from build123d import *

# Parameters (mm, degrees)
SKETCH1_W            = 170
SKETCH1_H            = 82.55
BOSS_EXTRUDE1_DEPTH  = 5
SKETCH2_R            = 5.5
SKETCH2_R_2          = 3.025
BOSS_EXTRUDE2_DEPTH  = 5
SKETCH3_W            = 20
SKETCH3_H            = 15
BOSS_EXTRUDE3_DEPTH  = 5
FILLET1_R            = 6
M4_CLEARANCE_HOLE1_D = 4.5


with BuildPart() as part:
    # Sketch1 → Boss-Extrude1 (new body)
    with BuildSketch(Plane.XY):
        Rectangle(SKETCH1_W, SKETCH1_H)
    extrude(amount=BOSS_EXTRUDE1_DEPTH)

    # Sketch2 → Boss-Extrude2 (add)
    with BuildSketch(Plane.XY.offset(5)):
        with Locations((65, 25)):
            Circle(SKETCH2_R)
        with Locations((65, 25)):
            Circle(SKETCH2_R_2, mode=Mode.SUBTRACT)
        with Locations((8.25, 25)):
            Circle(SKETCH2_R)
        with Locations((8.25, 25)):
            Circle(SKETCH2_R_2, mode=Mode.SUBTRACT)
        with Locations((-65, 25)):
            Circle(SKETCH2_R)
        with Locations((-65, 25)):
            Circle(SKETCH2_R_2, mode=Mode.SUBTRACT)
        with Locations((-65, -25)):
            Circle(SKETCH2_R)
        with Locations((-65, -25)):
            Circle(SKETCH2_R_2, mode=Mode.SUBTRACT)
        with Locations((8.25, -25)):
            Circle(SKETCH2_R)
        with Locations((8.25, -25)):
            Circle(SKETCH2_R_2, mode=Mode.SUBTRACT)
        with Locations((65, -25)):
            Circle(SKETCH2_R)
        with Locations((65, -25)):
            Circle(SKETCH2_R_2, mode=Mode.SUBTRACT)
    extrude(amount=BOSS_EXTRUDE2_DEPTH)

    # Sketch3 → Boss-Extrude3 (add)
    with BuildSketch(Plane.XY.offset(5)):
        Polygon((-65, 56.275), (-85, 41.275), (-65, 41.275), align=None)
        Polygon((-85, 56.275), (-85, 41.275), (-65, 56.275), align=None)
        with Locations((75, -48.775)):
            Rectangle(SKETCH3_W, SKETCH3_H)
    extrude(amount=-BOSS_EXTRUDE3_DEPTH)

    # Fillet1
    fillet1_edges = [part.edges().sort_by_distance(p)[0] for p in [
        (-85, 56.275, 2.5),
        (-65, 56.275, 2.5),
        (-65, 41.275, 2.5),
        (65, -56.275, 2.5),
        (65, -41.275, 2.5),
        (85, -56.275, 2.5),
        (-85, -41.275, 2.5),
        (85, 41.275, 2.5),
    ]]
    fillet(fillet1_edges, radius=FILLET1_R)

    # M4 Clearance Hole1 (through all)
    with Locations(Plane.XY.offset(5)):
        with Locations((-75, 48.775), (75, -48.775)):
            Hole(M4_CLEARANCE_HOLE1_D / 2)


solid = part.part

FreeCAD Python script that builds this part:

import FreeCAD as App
import Part
import Sketcher

V = App.Vector
Q = App.Units.Quantity


def edges_at(feature, points):
    """Names of the edges that pass closest to the given points."""
    edges = feature.Shape.Edges
    near = lambda p: min(range(len(edges)), key=lambda i: edges[i].distToShape(Part.Vertex(*p))[0])
    return sorted({f"Edge{near(p) + 1}" for p in points})

doc = App.newDocument("Part")
body = doc.addObject("PartDesign::Body", "Body")

sketch1 = body.newObject("Sketcher::SketchObject", "Sketch")
sketch1.AttachmentSupport = (doc.getObject("XY_Plane"), [""])
sketch1.MapMode = "FlatFace"
sketch1.addGeometry(Part.LineSegment(V(-85, 41, 0), V(-85, -41, 0)), False)
sketch1.addGeometry(Part.LineSegment(V(-85, -41, 0), V(85, -41, 0)), False)
sketch1.addGeometry(Part.LineSegment(V(85, -41, 0), V(85, 41, 0)), False)
sketch1.addGeometry(Part.LineSegment(V(85, 41, 0), V(-85, 41, 0)), False)
sketch1.addConstraint(Sketcher.Constraint("Coincident", 0, 2, 1, 1))
sketch1.addConstraint(Sketcher.Constraint("Coincident", 1, 2, 2, 1))
sketch1.addConstraint(Sketcher.Constraint("Coincident", 2, 2, 3, 1))
sketch1.addConstraint(Sketcher.Constraint("Coincident", 3, 2, 0, 1))
sketch1.addConstraint(Sketcher.Constraint("Vertical", 0))
sketch1.addConstraint(Sketcher.Constraint("Horizontal", 1))
sketch1.addConstraint(Sketcher.Constraint("Vertical", 2))
sketch1.addConstraint(Sketcher.Constraint("Horizontal", 3))
sketch1.addConstraint(Sketcher.Constraint("Symmetric", 0, 2, 2, 2, -1, 1))
sketch1.addConstraint(Sketcher.Constraint("DistanceX", 1, 1, 1, 2, Q("170 mm")))
sketch1.addConstraint(Sketcher.Constraint("DistanceY", 0, 2, 0, 1, Q("82.55 mm")))
pad1 = body.newObject("PartDesign::Pad", "Pad")
pad1.Profile = sketch1
pad1.Length = 5

sketch2 = body.newObject("Sketcher::SketchObject", "Sketch001")
sketch2.AttachmentSupport = (doc.getObject("XY_Plane"), [""])
sketch2.MapMode = "FlatFace"
sketch2.AttachmentOffset = App.Placement(V(0, 0, 5), App.Rotation())
sketch2.addGeometry(Part.Circle(V(65, 25, 0), V(0, 0, 1), 5.5), False)
sketch2.addGeometry(Part.Circle(V(65, 25, 0), V(0, 0, 1), 3), False)
sketch2.addGeometry(Part.Circle(V(8.2, 25, 0), V(0, 0, 1), 5.5), False)
sketch2.addGeometry(Part.Circle(V(8.2, 25, 0), V(0, 0, 1), 3), False)
sketch2.addGeometry(Part.Circle(V(-65, 25, 0), V(0, 0, 1), 5.5), False)
sketch2.addGeometry(Part.Circle(V(-65, 25, 0), V(0, 0, 1), 3), False)
sketch2.addGeometry(Part.Circle(V(-65, -25, 0), V(0, 0, 1), 5.5), False)
sketch2.addGeometry(Part.Circle(V(-65, -25, 0), V(0, 0, 1), 3), False)
sketch2.addGeometry(Part.Circle(V(8.2, -25, 0), V(0, 0, 1), 5.5), False)
sketch2.addGeometry(Part.Circle(V(8.2, -25, 0), V(0, 0, 1), 3), False)
sketch2.addGeometry(Part.Circle(V(65, -25, 0), V(0, 0, 1), 5.5), False)
sketch2.addGeometry(Part.Circle(V(65, -25, 0), V(0, 0, 1), 3), False)
sketch2.addConstraint(Sketcher.Constraint("Coincident", 1, 3, 0, 3))
sketch2.addConstraint(Sketcher.Constraint("Coincident", 3, 3, 2, 3))
sketch2.addConstraint(Sketcher.Constraint("Coincident", 5, 3, 4, 3))
sketch2.addConstraint(Sketcher.Constraint("Coincident", 7, 3, 6, 3))
sketch2.addConstraint(Sketcher.Constraint("Coincident", 9, 3, 8, 3))
sketch2.addConstraint(Sketcher.Constraint("Coincident", 11, 3, 10, 3))
sketch2.addConstraint(Sketcher.Constraint("Equal", 0, 2))
sketch2.addConstraint(Sketcher.Constraint("Equal", 1, 3))
sketch2.addConstraint(Sketcher.Constraint("Equal", 2, 4))
sketch2.addConstraint(Sketcher.Constraint("Equal", 3, 5))
sketch2.addConstraint(Sketcher.Constraint("Equal", 4, 6))
sketch2.addConstraint(Sketcher.Constraint("Equal", 5, 7))
sketch2.addConstraint(Sketcher.Constraint("Equal", 6, 8))
sketch2.addConstraint(Sketcher.Constraint("Equal", 7, 9))
sketch2.addConstraint(Sketcher.Constraint("Equal", 8, 10))
sketch2.addConstraint(Sketcher.Constraint("Equal", 9, 11))
sketch2.addConstraint(Sketcher.Constraint("Symmetric", 0, 3, 6, 3, -1, 1))
sketch2.addConstraint(Sketcher.Constraint("Symmetric", 4, 3, 10, 3, -1, 1))
sketch2.addConstraint(Sketcher.Constraint("Symmetric", 0, 3, 4, 3, -2))
sketch2.addConstraint(Sketcher.Constraint("Symmetric", 2, 3, 8, 3, -1))
sketch2.addConstraint(Sketcher.Constraint("Horizontal", 1, 3, 2, 3))
sketch2.addConstraint(Sketcher.Constraint("Diameter", 0, Q("11 mm")))
sketch2.addConstraint(Sketcher.Constraint("Diameter", 1, Q("6.05 mm")))
sketch2.addConstraint(Sketcher.Constraint("DistanceX", -1, 1, 0, 3, Q("65 mm")))
sketch2.addConstraint(Sketcher.Constraint("DistanceY", -1, 1, 0, 3, Q("25 mm")))
sketch2.addConstraint(Sketcher.Constraint("DistanceX", -1, 1, 2, 3, Q("8.25 mm")))
pad2 = body.newObject("PartDesign::Pad", "Pad001")
pad2.Profile = sketch2
pad2.Length = 5

sketch3 = body.newObject("Sketcher::SketchObject", "Sketch002")
sketch3.AttachmentSupport = (doc.getObject("XY_Plane"), [""])
sketch3.MapMode = "FlatFace"
sketch3.AttachmentOffset = App.Placement(V(0, 0, 5), App.Rotation())
sketch3.addGeometry(Part.LineSegment(V(-85, 41, 0), V(-65, 41, 0)), False)
sketch3.addGeometry(Part.LineSegment(V(-65, 41, 0), V(-65, 56, 0)), False)
sketch3.addGeometry(Part.LineSegment(V(-65, 56, 0), V(-85, 56, 0)), False)
sketch3.addGeometry(Part.LineSegment(V(-85, 56, 0), V(-85, 41, 0)), False)
sketch3.addGeometry(Part.LineSegment(V(65, -41, 0), V(65, -56, 0)), False)
sketch3.addGeometry(Part.LineSegment(V(65, -56, 0), V(85, -56, 0)), False)
sketch3.addGeometry(Part.LineSegment(V(85, -56, 0), V(85, -41, 0)), False)
sketch3.addGeometry(Part.LineSegment(V(85, -41, 0), V(65, -41, 0)), False)
sketch3.addConstraint(Sketcher.Constraint("Coincident", 0, 2, 1, 1))
sketch3.addConstraint(Sketcher.Constraint("Coincident", 1, 2, 2, 1))
sketch3.addConstraint(Sketcher.Constraint("Coincident", 2, 2, 3, 1))
sketch3.addConstraint(Sketcher.Constraint("Coincident", 3, 2, 0, 1))
sketch3.addConstraint(Sketcher.Constraint("Coincident", 4, 2, 5, 1))
sketch3.addConstraint(Sketcher.Constraint("Coincident", 5, 2, 6, 1))
sketch3.addConstraint(Sketcher.Constraint("Coincident", 6, 2, 7, 1))
sketch3.addConstraint(Sketcher.Constraint("Coincident", 7, 2, 4, 1))
sketch3.addConstraint(Sketcher.Constraint("Horizontal", 0))
sketch3.addConstraint(Sketcher.Constraint("Vertical", 1))
sketch3.addConstraint(Sketcher.Constraint("Horizontal", 2))
sketch3.addConstraint(Sketcher.Constraint("Vertical", 3))
sketch3.addConstraint(Sketcher.Constraint("Vertical", 4))
sketch3.addConstraint(Sketcher.Constraint("Horizontal", 5))
sketch3.addConstraint(Sketcher.Constraint("Vertical", 6))
sketch3.addConstraint(Sketcher.Constraint("Horizontal", 7))
sketch3.addConstraint(Sketcher.Constraint("Symmetric", 1, 2, 4, 2, -1, 1))
sketch3.addConstraint(Sketcher.Constraint("Symmetric", 3, 2, 6, 2, -1, 1))
sketch3.addConstraint(Sketcher.Constraint("DistanceX", 0, 1, 0, 2, Q("20 mm")))
sketch3.addConstraint(Sketcher.Constraint("DistanceY", 1, 1, 1, 2, Q("15 mm")))
sketch3.addConstraint(Sketcher.Constraint("DistanceX", 0, 2, -1, 1, Q("65 mm")))
sketch3.addConstraint(Sketcher.Constraint("DistanceY", 4, 2, 0, 2, Q("97.55 mm")))
pad3 = body.newObject("PartDesign::Pad", "Pad002")
pad3.Profile = sketch3
pad3.Length = 5
pad3.Reversed = True
doc.recompute()

fillet = body.newObject("PartDesign::Fillet", "Fillet")
fillet.Base = (pad3, edges_at(pad3, [
    (-85, 56.275, 2.5),
    (-65, 56.275, 2.5),
    (-65, 41.275, 2.5),
    (65, -56.275, 2.5),
    (65, -41.275, 2.5),
    (85, -56.275, 2.5),
    (-85, -41.275, 2.5),
    (85, 41.275, 2.5),
]))
fillet.Radius = 6

sketch4 = body.newObject("Sketcher::SketchObject", "Sketch003")
sketch4.AttachmentSupport = (doc.getObject("XY_Plane"), [""])
sketch4.MapMode = "FlatFace"
sketch4.AttachmentOffset = App.Placement(V(0, 0, 5), App.Rotation())
sketch4.addGeometry(Part.Circle(V(-75, 48.8, 0), V(0, 0, 1), 2.2), False)
sketch4.addGeometry(Part.Circle(V(75, -48.8, 0), V(0, 0, 1), 2.2), False)
sketch4.addConstraint(Sketcher.Constraint("Equal", 0, 1))
sketch4.addConstraint(Sketcher.Constraint("Symmetric", 0, 3, 1, 3, -1, 1))
sketch4.addConstraint(Sketcher.Constraint("Diameter", 0, Q("4.5 mm")))
sketch4.addConstraint(Sketcher.Constraint("DistanceX", 0, 3, -1, 1, Q("75 mm")))
sketch4.addConstraint(Sketcher.Constraint("DistanceY", 1, 3, 0, 3, Q("97.55 mm")))
doc.recompute()
hole = body.newObject("PartDesign::Hole", "Hole")
hole.Profile = sketch4
hole.ThreadType = "None"
hole.Diameter = 4.5
hole.DepthType = "ThroughAll"

doc.recompute()
